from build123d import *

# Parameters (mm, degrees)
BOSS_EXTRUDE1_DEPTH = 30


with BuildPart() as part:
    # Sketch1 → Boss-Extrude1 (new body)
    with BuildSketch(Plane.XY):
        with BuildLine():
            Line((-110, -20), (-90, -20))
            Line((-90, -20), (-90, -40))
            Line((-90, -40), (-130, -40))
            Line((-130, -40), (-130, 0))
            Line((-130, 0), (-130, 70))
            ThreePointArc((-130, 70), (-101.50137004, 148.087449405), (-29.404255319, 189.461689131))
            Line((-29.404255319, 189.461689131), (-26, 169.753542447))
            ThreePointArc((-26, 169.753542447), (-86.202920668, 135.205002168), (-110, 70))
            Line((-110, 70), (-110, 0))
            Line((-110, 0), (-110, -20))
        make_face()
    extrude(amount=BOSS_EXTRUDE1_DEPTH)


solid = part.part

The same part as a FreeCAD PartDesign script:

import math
import FreeCAD as App
import Part
import Sketcher

V = App.Vector
Q = App.Units.Quantity

doc = App.newDocument("Part")
params = doc.addObject("Spreadsheet::Sheet", "Params")
for row, (alias, value) in enumerate([
    ("sketch1_width", "20 mm"),
    ("sketch1_width2", "40 mm"),
    ("sketch1_height", "90 mm"),
    ("pad1_length", "30 mm"),
], start=1):
    params.set(f"A{row}", alias)
    params.set(f"B{row}", "=" + value)
    params.setAlias(f"B{row}", alias)

body = doc.addObject("PartDesign::Body", "Body")

sketch1 = doc.addObject("Sketcher::SketchObject", "Sketch")
body.addObject(sketch1)
sketch1.AttachmentSupport = (doc.XY_Plane, [""])
sketch1.MapMode = "FlatFace"
sketch1.addGeometry(Part.LineSegment(V(-90, -20, 0), V(-110, -20, 0)), False)
sketch1.addGeometry(Part.LineSegment(V(-110, -20, 0), V(-110, 70, 0)), False)
sketch1.addGeometry(Part.ArcOfCircle(Part.Circle(V(-9, 70, 0), V(0, 0, 1), 101), math.radians(100), math.radians(180)), False)
sketch1.addGeometry(Part.LineSegment(V(-26, 170, 0), V(-29, 189, 0)), False)
sketch1.addGeometry(Part.ArcOfCircle(Part.Circle(V(-9, 70, 0), V(0, 0, 1), 121), math.radians(100), math.radians(180)), False)
sketch1.addGeometry(Part.LineSegment(V(-130, 70, 0), V(-130, -40, 0)), False)
sketch1.addGeometry(Part.LineSegment(V(-130, -40, 0), V(-90, -40, 0)), False)
sketch1.addGeometry(Part.LineSegment(V(-90, -40, 0), V(-90, -20, 0)), False)
sketch1.addConstraint(Sketcher.Constraint("Coincident", 0, 2, 1, 1))
sketch1.addConstraint(Sketcher.Constraint("Tangent", 1, 2, 2, 2))
sketch1.addConstraint(Sketcher.Constraint("Coincident", 2, 1, 3, 1))
sketch1.addConstraint(Sketcher.Constraint("Coincident", 3, 2, 4, 1))
sketch1.addConstraint(Sketcher.Constraint("Tangent", 4, 2, 5, 1))
sketch1.addConstraint(Sketcher.Constraint("Coincident", 5, 2, 6, 1))
sketch1.addConstraint(Sketcher.Constraint("Coincident", 6, 2, 7, 1))
sketch1.addConstraint(Sketcher.Constraint("Coincident", 7, 2, 0, 1))
sketch1.addConstraint(Sketcher.Constraint("Horizontal", 0))
sketch1.addConstraint(Sketcher.Constraint("Vertical", 1))
sketch1.addConstraint(Sketcher.Constraint("Vertical", 5))
sketch1.addConstraint(Sketcher.Constraint("Horizontal", 6))
sketch1.addConstraint(Sketcher.Constraint("Vertical", 7))
sketch1.addConstraint(Sketcher.Constraint("Coincident", 4, 3, 2, 3))
sketch1.addConstraint(Sketcher.Constraint("Equal", 0, 7))
sketch1.addConstraint(Sketcher.Constraint("DistanceX", 0, 2, 0, 1, Q("20 mm")))
sketch1.addConstraint(Sketcher.Constraint("DistanceX", 6, 1, 6, 2, Q("40 mm")))
sketch1.addConstraint(Sketcher.Constraint("DistanceY", 1, 1, 1, 2, Q("90 mm")))
sketch1.addConstraint(Sketcher.Constraint("DistanceY", -1, 1, 2, 3, Q("70 mm")))
sketch1.addConstraint(Sketcher.Constraint("DistanceX", 0, 2, -1, 1, Q("110 mm")))
sketch1.addConstraint(Sketcher.Constraint("DistanceX", 2, 1, -1, 1, Q("26 mm")))
sketch1.addConstraint(Sketcher.Constraint("Radius", 2, Q("101.230769 mm")))
sketch1.addConstraint(Sketcher.Constraint("DistanceY", -1, 1, 3, 2, Q("189.461689 mm")))
sketch1.setExpression("Constraints[15]", "Params.sketch1_width")
sketch1.setExpression("Constraints[16]", "Params.sketch1_width2")
sketch1.setExpression("Constraints[17]", "Params.sketch1_height")
pad1 = doc.addObject("PartDesign::Pad", "Pad")
body.addObject(pad1)
pad1.Profile = sketch1
pad1.setExpression("Length", "Params.pad1_length")

doc.recompute()
